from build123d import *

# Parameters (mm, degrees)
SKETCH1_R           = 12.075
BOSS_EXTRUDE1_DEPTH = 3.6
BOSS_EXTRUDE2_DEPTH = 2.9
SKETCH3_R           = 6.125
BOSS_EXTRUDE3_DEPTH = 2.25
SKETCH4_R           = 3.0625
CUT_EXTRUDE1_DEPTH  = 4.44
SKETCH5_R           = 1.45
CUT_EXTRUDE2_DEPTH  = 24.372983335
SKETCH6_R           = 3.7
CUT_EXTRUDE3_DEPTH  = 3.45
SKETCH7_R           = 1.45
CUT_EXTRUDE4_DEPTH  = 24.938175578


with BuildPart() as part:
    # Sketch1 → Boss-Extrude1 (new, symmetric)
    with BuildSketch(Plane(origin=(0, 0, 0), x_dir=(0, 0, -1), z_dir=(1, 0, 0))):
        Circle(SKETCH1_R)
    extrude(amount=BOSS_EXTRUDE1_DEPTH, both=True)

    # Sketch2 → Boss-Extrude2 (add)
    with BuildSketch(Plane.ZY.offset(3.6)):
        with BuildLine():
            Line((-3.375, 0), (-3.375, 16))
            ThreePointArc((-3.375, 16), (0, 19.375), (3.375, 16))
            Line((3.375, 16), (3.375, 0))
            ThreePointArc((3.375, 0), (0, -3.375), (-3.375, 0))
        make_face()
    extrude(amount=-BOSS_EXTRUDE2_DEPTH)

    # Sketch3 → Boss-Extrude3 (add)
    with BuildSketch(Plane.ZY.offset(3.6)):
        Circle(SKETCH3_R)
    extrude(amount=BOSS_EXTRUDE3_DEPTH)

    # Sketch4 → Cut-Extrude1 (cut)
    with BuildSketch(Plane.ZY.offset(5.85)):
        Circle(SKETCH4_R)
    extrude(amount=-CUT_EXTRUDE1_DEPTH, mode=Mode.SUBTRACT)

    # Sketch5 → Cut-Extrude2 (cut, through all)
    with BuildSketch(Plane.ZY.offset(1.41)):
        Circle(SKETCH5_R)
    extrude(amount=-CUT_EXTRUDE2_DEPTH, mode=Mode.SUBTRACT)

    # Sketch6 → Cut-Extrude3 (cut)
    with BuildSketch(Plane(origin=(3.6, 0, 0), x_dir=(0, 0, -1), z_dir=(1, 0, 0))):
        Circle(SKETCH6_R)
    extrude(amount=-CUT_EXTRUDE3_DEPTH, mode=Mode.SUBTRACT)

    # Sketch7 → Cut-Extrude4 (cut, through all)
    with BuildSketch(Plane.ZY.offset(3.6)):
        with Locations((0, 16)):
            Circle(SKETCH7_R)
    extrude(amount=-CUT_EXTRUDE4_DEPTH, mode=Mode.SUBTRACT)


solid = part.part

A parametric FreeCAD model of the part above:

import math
import FreeCAD as App
import Part
import Sketcher

V = App.Vector

doc = App.newDocument("Part")
params = doc.addObject("Spreadsheet::Sheet", "Params")
for row, (alias, value) in enumerate([
    ("sketch1_diameter", "24.15 mm"),
    ("pad1_length", "7.2 mm"),
    ("sketch2_width", "16 mm"),
    ("pad2_length", "2.9 mm"),
    ("sketch3_diameter", "12.25 mm"),
    ("pad3_length", "2.25 mm"),
    ("pocket1_length", "4.44 mm"),
    ("sketch5_diameter", "2.9 mm"),
    ("sketch6_diameter", "7.4 mm"),
    ("pocket3_length", "3.45 mm"),
    ("sketch7_diameter", "2.9 mm"),
], start=1):
    params.set(f"A{row}", alias)
    params.set(f"B{row}", "=" + value)
    params.setAlias(f"B{row}", alias)

body = doc.addObject("PartDesign::Body", "Body")

sketch1 = doc.addObject("Sketcher::SketchObject", "Sketch")
body.addObject(sketch1)
sketch1.AttachmentSupport = (doc.YZ_Plane, [""])
sketch1.MapMode = "FlatFace"
sketch1.addGeometry(Part.Circle(V(0, 0, 0), V(0, 0, 1), 12.075), False)
sketch1.addConstraint([
    Sketcher.Constraint("Coincident", 0, 3, -1, 1),
    Sketcher.Constraint("Diameter", 0, 24.15),
])
sketch1.setExpression("Constraints[1]", "Params.sketch1_diameter")
pad1 = doc.addObject("PartDesign::Pad", "Pad")
body.addObject(pad1)
pad1.Profile = sketch1
pad1.setExpression("Length", "Params.pad1_length")
pad1.Midplane = True

sketch2 = doc.addObject("Sketcher::SketchObject", "Sketch001")
body.addObject(sketch2)
sketch2.AttachmentSupport = (doc.YZ_Plane, [""])
sketch2.MapMode = "FlatFace"
sketch2.AttachmentOffset = App.Placement(V(0, 0, -3.6), App.Rotation())
sketch2.addGeometry([
    Part.LineSegment(V(16, -3.375, 0), V(0, -3.375, 0)),
    Part.ArcOfCircle(Part.Circle(V(0, 0, 0), V(0, 0, 1), 3.375), math.radians(90), math.radians(270)),
    Part.LineSegment(V(0, 3.375, 0), V(16, 3.375, 0)),
    Part.ArcOfCircle(Part.Circle(V(16, 0, 0), V(0, 0, 1), 3.375), math.radians(-90), math.radians(90)),
], False)
sketch2.addConstraint([
    Sketcher.Constraint("Tangent", 0, 2, 1, 2),
    Sketcher.Constraint("Tangent", 1, 1, 2, 1),
    Sketcher.Constraint("Tangent", 2, 2, 3, 2),
    Sketcher.Constraint("Tangent", 3, 1, 0, 1),
    Sketcher.Constraint("Horizontal", 0),
    Sketcher.Constraint("Horizontal", 2),
    Sketcher.Constraint("Coincident", 1, 3, -1, 1),
    Sketcher.Constraint("DistanceX", 0, 2, 0, 1, 16.0),
    Sketcher.Constraint("Radius", 1, 3.375),
])
sketch2.setExpression("Constraints[7]", "Params.sketch2_width")
pad2 = doc.addObject("PartDesign::Pad", "Pad001")
body.addObject(pad2)
pad2.Profile = sketch2
pad2.setExpression("Length", "Params.pad2_length")

sketch3 = doc.addObject("Sketcher::SketchObject", "Sketch002")
body.addObject(sketch3)
sketch3.AttachmentSupport = (doc.YZ_Plane, [""])
sketch3.MapMode = "FlatFace"
sketch3.AttachmentOffset = App.Placement(V(0, 0, -3.6), App.Rotation())
sketch3.addGeometry(Part.Circle(V(0, 0, 0), V(0, 0, 1), 6.125), False)
sketch3.addConstraint([
    Sketcher.Constraint("Coincident", 0, 3, -1, 1),
    Sketcher.Constraint("Diameter", 0, 12.25),
])
sketch3.setExpression("Constraints[1]", "Params.sketch3_diameter")
pad3 = doc.addObject("PartDesign::Pad", "Pad002")
body.addObject(pad3)
pad3.Profile = sketch3
pad3.setExpression("Length", "Params.pad3_length")
pad3.Reversed = True

sketch4 = doc.addObject("Sketcher::SketchObject", "Sketch003")
body.addObject(sketch4)
sketch4.AttachmentSupport = (doc.YZ_Plane, [""])
sketch4.MapMode = "FlatFace"
sketch4.AttachmentOffset = App.Placement(V(0, 0, -5.85), App.Rotation())
sketch4.addGeometry(Part.Circle(V(0, 0, 0), V(0, 0, 1), 3.0625), False)
sketch4.addConstraint([
    Sketcher.Constraint("Coincident", 0, 3, -1, 1),
    Sketcher.Constraint("Diameter", 0, 6.125),
])
pocket1 = doc.addObject("PartDesign::Pocket", "Pocket")
body.addObject(pocket1)
pocket1.Profile = sketch4
pocket1.setExpression("Length", "Params.pocket1_length")
pocket1.Reversed = True

sketch5 = doc.addObject("Sketcher::SketchObject", "Sketch004")
body.addObject(sketch5)
sketch5.AttachmentSupport = (doc.YZ_Plane, [""])
sketch5.MapMode = "FlatFace"
sketch5.AttachmentOffset = App.Placement(V(0, 0, -1.41), App.Rotation())
sketch5.addGeometry(Part.Circle(V(0, 0, 0), V(0, 0, 1), 1.45), False)
sketch5.addConstraint([
    Sketcher.Constraint("Coincident", 0, 3, -1, 1),
    Sketcher.Constraint("Diameter", 0, 2.9),
])
sketch5.setExpression("Constraints[1]", "Params.sketch5_diameter")
pocket2 = doc.addObject("PartDesign::Pocket", "Pocket001")
body.addObject(pocket2)
pocket2.Profile = sketch5
pocket2.Type = "ThroughAll"
pocket2.Reversed = True

sketch6 = doc.addObject("Sketcher::SketchObject", "Sketch005")
body.addObject(sketch6)
sketch6.AttachmentSupport = (doc.YZ_Plane, [""])
sketch6.MapMode = "FlatFace"
sketch6.AttachmentOffset = App.Placement(V(0, 0, 3.6), App.Rotation())
sketch6.addGeometry(Part.Circle(V(0, 0, 0), V(0, 0, 1), 3.7), False)
sketch6.addConstraint([
    Sketcher.Constraint("Coincident", 0, 3, -1, 1),
    Sketcher.Constraint("Diameter", 0, 7.4),
])
sketch6.setExpression("Constraints[1]", "Params.sketch6_diameter")
pocket3 = doc.addObject("PartDesign::Pocket", "Pocket002")
body.addObject(pocket3)
pocket3.Profile = sketch6
pocket3.setExpression("Length", "Params.pocket3_length")

sketch7 = doc.addObject("Sketcher::SketchObject", "Sketch006")
body.addObject(sketch7)
sketch7.AttachmentSupport = (doc.YZ_Plane, [""])
sketch7.MapMode = "FlatFace"
sketch7.AttachmentOffset = App.Placement(V(0, 0, -3.6), App.Rotation())
sketch7.addGeometry(Part.Circle(V(16, 0, 0), V(0, 0, 1), 1.45), False)
sketch7.addConstraint([
    Sketcher.Constraint("PointOnObject", 0, 3, -1),
    Sketcher.Constraint("Diameter", 0, 2.9),
    Sketcher.Constraint("DistanceX", -1, 1, 0, 3, 16.0),
])
sketch7.setExpression("Constraints[1]", "Params.sketch7_diameter")
pocket4 = doc.addObject("PartDesign::Pocket", "Pocket003")
body.addObject(pocket4)
pocket4.Profile = sketch7
pocket4.Type = "ThroughAll"
pocket4.Reversed = True

doc.recompute()
